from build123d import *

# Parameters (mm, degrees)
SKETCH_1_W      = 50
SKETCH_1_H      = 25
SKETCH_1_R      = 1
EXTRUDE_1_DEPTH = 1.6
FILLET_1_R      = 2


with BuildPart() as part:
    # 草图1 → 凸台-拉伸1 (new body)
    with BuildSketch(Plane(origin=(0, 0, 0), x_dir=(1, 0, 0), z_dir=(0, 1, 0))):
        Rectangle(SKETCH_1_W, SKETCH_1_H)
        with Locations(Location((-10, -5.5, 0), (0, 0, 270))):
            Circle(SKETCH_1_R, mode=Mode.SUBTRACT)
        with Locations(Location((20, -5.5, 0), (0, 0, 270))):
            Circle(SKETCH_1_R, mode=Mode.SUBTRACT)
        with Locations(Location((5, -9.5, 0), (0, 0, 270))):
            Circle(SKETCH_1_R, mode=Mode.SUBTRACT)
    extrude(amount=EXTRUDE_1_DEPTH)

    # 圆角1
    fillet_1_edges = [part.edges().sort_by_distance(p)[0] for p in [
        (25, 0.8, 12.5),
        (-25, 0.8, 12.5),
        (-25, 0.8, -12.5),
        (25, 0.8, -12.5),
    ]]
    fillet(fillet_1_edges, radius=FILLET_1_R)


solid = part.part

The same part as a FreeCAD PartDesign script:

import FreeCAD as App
import Part
import Sketcher


def edges_at(feature, points):
    """Names of the edges that pass closest to the given points."""
    edges = feature.Shape.Edges
    near = lambda p: min(range(len(edges)), key=lambda i: edges[i].distToShape(Part.Vertex(*p))[0])
    return sorted({f"Edge{near(p) + 1}" for p in points})

doc = App.newDocument("Part")
body = doc.addObject("PartDesign::Body", "Body")

# Sketch on XZ plane
sketch1 = doc.addObject("Sketcher::SketchObject", "Sketch")
body.addObject(sketch1)
sketch1.AttachmentSupport = (doc.XZ_Plane, [""])
sketch1.MapMode = "FlatFace"
sketch1.addGeometry([
    Part.LineSegment(App.Vector(-25, -12.5, 0), App.Vector(-25, 12.5, 0)),  # 0
    Part.LineSegment(App.Vector(-25, 12.5, 0), App.Vector(25, 12.5, 0)),  # 1
    Part.LineSegment(App.Vector(25, 12.5, 0), App.Vector(25, -12.5, 0)),  # 2
    Part.LineSegment(App.Vector(25, -12.5, 0), App.Vector(-25, -12.5, 0)),  # 3
    Part.Circle(App.Vector(5, 9.5, 0), App.Vector(0, 0, 1), 1),  # 4
    Part.Circle(App.Vector(-10, 5.5, 0), App.Vector(0, 0, 1), 1),  # 5
    Part.Circle(App.Vector(20, 5.5, 0), App.Vector(0, 0, 1), 1),  # 6
], False)
sketch1.addConstraint([
    Sketcher.Constraint("Coincident", 0, 2, 1, 1),
    Sketcher.Constraint("Coincident", 1, 2, 2, 1),
    Sketcher.Constraint("Coincident", 2, 2, 3, 1),
    Sketcher.Constraint("Coincident", 3, 2, 0, 1),
    Sketcher.Constraint("Vertical", 0),
    Sketcher.Constraint("Horizontal", 1),
    Sketcher.Constraint("Vertical", 2),
    Sketcher.Constraint("Horizontal", 3),
    Sketcher.Constraint("Equal", 4, 5),
    Sketcher.Constraint("Equal", 5, 6),
    Sketcher.Constraint("Symmetric", 0, 2, 2, 2, -1, 1),
    Sketcher.Constraint("Horizontal", 5, 3, 6, 3),
    Sketcher.Constraint("Diameter", 4, 2.0),
    Sketcher.Constraint("DistanceX", 1, 1, 1, 2, 50.0),
    Sketcher.Constraint("DistanceY", 0, 1, 0, 2, 25.0),
    Sketcher.Constraint("DistanceX", -1, 1, 4, 3, 5.0),
    Sketcher.Constraint("DistanceX", 5, 3, -1, 1, 10.0),
    Sketcher.Constraint("DistanceX", -1, 1, 6, 3, 20.0),
    Sketcher.Constraint("DistanceY", 5, 3, 4, 3, 4.0),
    Sketcher.Constraint("DistanceY", 5, 3, 0, 2, 7.0),
])
pad1 = doc.addObject("PartDesign::Pad", "Pad")
body.addObject(pad1)
pad1.Profile = sketch1
pad1.Length = 1.6
pad1.Reversed = True
doc.recompute()

fillet = doc.addObject("PartDesign::Fillet", "Fillet")
body.addObject(fillet)
fillet.Base = (pad1, edges_at(pad1, [
    (25, 0.8, 12.5),
    (-25, 0.8, 12.5),
    (-25, 0.8, -12.5),
    (25, 0.8, -12.5),
]))
fillet.Radius = 2

doc.recompute()
